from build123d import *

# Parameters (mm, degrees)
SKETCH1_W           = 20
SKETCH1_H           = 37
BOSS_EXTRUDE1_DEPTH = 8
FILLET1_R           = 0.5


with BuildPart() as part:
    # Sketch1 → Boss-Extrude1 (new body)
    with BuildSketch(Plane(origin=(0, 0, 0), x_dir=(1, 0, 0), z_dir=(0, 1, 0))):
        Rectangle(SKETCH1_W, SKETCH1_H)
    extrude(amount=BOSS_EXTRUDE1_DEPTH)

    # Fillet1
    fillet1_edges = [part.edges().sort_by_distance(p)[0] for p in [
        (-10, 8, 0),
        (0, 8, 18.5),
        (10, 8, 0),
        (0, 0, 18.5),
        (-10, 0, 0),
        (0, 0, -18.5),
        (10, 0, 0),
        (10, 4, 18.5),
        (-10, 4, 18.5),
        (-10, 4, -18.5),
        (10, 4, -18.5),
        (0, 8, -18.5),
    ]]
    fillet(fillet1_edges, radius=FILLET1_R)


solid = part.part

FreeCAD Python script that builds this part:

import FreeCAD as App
import Part
import Sketcher

V = App.Vector
Q = App.Units.Quantity

doc = App.newDocument("Part")
body = doc.addObject("PartDesign::Body", "Body")

# Sketch on XZ plane
sketch1 = body.newObject("Sketcher::SketchObject", "Sketch")
sketch1.AttachmentSupport = (doc.getObject("XZ_Plane"), [""])
sketch1.MapMode = "FlatFace"
sketch1.addGeometry(Part.LineSegment(V(-10, -18.5, 0), V(-10, 18.5, 0)), False)
sketch1.addGeometry(Part.LineSegment(V(-10, 18.5, 0), V(10, 18.5, 0)), False)
sketch1.addGeometry(Part.LineSegment(V(10, 18.5, 0), V(10, -18.5, 0)), False)
sketch1.addGeometry(Part.LineSegment(V(10, -18.5, 0), V(-10, -18.5, 0)), False)
sketch1.addConstraint(Sketcher.Constraint("Coincident", 0, 2, 1, 1))
sketch1.addConstraint(Sketcher.Constraint("Coincident", 1, 2, 2, 1))
sketch1.addConstraint(Sketcher.Constraint("Coincident", 2, 2, 3, 1))
sketch1.addConstraint(Sketcher.Constraint("Coincident", 3, 2, 0, 1))
sketch1.addConstraint(Sketcher.Constraint("Vertical", 0))
sketch1.addConstraint(Sketcher.Constraint("Horizontal", 1))
sketch1.addConstraint(Sketcher.Constraint("Vertical", 2))
sketch1.addConstraint(Sketcher.Constraint("Horizontal", 3))
sketch1.addConstraint(Sketcher.Constraint("Symmetric", 0, 2, 2, 2, -1, 1))
sketch1.addConstraint(Sketcher.Constraint("DistanceX", 1, 1, 1, 2, Q("20 mm")))
sketch1.addConstraint(Sketcher.Constraint("DistanceY", 0, 1, 0, 2, Q("37 mm")))
pad1 = body.newObject("PartDesign::Pad", "Pad")
pad1.Profile = sketch1
pad1.Length = 8
pad1.Reversed = True
doc.recompute()

fillet = body.newObject("PartDesign::Fillet", "Fillet")
fillet.Base = (pad1, ["Edge1"])
fillet.UseAllEdges = True
fillet.Radius = 0.5

doc.recompute()
